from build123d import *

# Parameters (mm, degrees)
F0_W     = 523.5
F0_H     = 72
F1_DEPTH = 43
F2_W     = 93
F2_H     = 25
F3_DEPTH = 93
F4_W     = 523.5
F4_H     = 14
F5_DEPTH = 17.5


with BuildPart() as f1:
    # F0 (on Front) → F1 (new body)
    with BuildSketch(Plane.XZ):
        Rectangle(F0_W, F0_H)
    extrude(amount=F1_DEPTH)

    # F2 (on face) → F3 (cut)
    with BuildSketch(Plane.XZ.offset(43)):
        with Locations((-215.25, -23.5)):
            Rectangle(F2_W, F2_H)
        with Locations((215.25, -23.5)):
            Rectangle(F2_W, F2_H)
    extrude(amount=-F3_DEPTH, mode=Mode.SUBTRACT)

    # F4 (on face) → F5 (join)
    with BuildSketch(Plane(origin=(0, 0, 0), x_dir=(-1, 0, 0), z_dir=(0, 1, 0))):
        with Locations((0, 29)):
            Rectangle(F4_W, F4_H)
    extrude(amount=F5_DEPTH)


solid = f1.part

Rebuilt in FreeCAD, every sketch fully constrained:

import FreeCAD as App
import Part
import Sketcher

V = App.Vector


def add_polygon(sketch, points):
    """Adds a closed chain of lines whose ends are joined by coincident constraints."""
    first, n = sketch.GeometryCount, len(points)
    for a, b in zip(points, points[1:] + points[:1]):
        sketch.addGeometry(Part.LineSegment(App.Vector(*a, 0), App.Vector(*b, 0)), False)
    for i in range(n):
        sketch.addConstraint(Sketcher.Constraint("Coincident", first + i, 2, first + (i + 1) % n, 1))

doc = App.newDocument("Part")
body = doc.addObject("PartDesign::Body", "Body")

# Sketch on XZ plane
sketch1 = body.newObject("Sketcher::SketchObject", "Sketch")
sketch1.AttachmentSupport = (doc.getObject("XZ_Plane"), [""])
sketch1.MapMode = "FlatFace"
add_polygon(sketch1, [(-262, 36), (-262, -36), (262, -36), (262, 36)])  # lines 0-3
sketch1.addConstraint(Sketcher.Constraint("Vertical", 0))
sketch1.addConstraint(Sketcher.Constraint("Horizontal", 1))
sketch1.addConstraint(Sketcher.Constraint("Vertical", 2))
sketch1.addConstraint(Sketcher.Constraint("Horizontal", 3))
sketch1.addConstraint(Sketcher.Constraint("Symmetric", 0, 2, 2, 2, -1, 1))
sketch1.addConstraint(Sketcher.Constraint("DistanceY", 0, 2, 0, 1, 72.0))
sketch1.addConstraint(Sketcher.Constraint("DistanceX", 1, 1, 1, 2, 523.5))
pad1 = body.newObject("PartDesign::Pad", "Pad")
pad1.Profile = sketch1
pad1.Length = 43

# Sketch on XZ plane
sketch2 = body.newObject("Sketcher::SketchObject", "Sketch001")
sketch2.AttachmentSupport = (doc.getObject("XZ_Plane"), [""])
sketch2.MapMode = "FlatFace"
sketch2.AttachmentOffset = App.Placement(V(0, 0, 43), App.Rotation())
add_polygon(sketch2, [(-262, -11), (-262, -36), (-169, -36), (-169, -11)])  # lines 0-3
add_polygon(sketch2, [(169, -11), (169, -36), (262, -36), (262, -11)])  # lines 4-7
sketch2.addConstraint(Sketcher.Constraint("Vertical", 0))
sketch2.addConstraint(Sketcher.Constraint("Horizontal", 1))
sketch2.addConstraint(Sketcher.Constraint("Vertical", 2))
sketch2.addConstraint(Sketcher.Constraint("Horizontal", 3))
sketch2.addConstraint(Sketcher.Constraint("Vertical", 4))
sketch2.addConstraint(Sketcher.Constraint("Horizontal", 5))
sketch2.addConstraint(Sketcher.Constraint("Vertical", 6))
sketch2.addConstraint(Sketcher.Constraint("Horizontal", 7))
sketch2.addConstraint(Sketcher.Constraint("Symmetric", 1, 2, 4, 2, -2))
sketch2.addConstraint(Sketcher.Constraint("Symmetric", 3, 2, 6, 2, -2))
sketch2.addConstraint(Sketcher.Constraint("DistanceX", 1, 1, 1, 2, 93.0))
sketch2.addConstraint(Sketcher.Constraint("DistanceY", 0, 2, 0, 1, 25.0))
sketch2.addConstraint(Sketcher.Constraint("DistanceY", 0, 2, -1, 1, 36.0))
sketch2.addConstraint(Sketcher.Constraint("DistanceX", 1, 2, 4, 2, 337.5))
pocket1 = body.newObject("PartDesign::Pocket", "Pocket")
pocket1.Profile = sketch2
pocket1.Length = 93

# Sketch on XZ plane
sketch3 = body.newObject("Sketcher::SketchObject", "Sketch002")
sketch3.AttachmentSupport = (doc.getObject("XZ_Plane"), [""])
sketch3.MapMode = "FlatFace"
add_polygon(sketch3, [(262, 36), (262, 22), (-262, 22), (-262, 36)])  # lines 0-3
sketch3.addConstraint(Sketcher.Constraint("Vertical", 0))
sketch3.addConstraint(Sketcher.Constraint("Horizontal", 1))
sketch3.addConstraint(Sketcher.Constraint("Vertical", 2))
sketch3.addConstraint(Sketcher.Constraint("Horizontal", 3))
sketch3.addConstraint(Sketcher.Constraint("DistanceY", 0, 2, 0, 1, 14.0))
sketch3.addConstraint(Sketcher.Constraint("DistanceX", 1, 2, 1, 1, 523.5))
sketch3.addConstraint(Sketcher.Constraint("DistanceY", -1, 1, 0, 2, 22.0))
sketch3.addConstraint(Sketcher.Constraint("DistanceX", -1, 1, 0, 2, 261.75))
pad2 = body.newObject("PartDesign::Pad", "Pad001")
pad2.Profile = sketch3
pad2.Length = 17.5
pad2.Reversed = True

doc.recompute()
